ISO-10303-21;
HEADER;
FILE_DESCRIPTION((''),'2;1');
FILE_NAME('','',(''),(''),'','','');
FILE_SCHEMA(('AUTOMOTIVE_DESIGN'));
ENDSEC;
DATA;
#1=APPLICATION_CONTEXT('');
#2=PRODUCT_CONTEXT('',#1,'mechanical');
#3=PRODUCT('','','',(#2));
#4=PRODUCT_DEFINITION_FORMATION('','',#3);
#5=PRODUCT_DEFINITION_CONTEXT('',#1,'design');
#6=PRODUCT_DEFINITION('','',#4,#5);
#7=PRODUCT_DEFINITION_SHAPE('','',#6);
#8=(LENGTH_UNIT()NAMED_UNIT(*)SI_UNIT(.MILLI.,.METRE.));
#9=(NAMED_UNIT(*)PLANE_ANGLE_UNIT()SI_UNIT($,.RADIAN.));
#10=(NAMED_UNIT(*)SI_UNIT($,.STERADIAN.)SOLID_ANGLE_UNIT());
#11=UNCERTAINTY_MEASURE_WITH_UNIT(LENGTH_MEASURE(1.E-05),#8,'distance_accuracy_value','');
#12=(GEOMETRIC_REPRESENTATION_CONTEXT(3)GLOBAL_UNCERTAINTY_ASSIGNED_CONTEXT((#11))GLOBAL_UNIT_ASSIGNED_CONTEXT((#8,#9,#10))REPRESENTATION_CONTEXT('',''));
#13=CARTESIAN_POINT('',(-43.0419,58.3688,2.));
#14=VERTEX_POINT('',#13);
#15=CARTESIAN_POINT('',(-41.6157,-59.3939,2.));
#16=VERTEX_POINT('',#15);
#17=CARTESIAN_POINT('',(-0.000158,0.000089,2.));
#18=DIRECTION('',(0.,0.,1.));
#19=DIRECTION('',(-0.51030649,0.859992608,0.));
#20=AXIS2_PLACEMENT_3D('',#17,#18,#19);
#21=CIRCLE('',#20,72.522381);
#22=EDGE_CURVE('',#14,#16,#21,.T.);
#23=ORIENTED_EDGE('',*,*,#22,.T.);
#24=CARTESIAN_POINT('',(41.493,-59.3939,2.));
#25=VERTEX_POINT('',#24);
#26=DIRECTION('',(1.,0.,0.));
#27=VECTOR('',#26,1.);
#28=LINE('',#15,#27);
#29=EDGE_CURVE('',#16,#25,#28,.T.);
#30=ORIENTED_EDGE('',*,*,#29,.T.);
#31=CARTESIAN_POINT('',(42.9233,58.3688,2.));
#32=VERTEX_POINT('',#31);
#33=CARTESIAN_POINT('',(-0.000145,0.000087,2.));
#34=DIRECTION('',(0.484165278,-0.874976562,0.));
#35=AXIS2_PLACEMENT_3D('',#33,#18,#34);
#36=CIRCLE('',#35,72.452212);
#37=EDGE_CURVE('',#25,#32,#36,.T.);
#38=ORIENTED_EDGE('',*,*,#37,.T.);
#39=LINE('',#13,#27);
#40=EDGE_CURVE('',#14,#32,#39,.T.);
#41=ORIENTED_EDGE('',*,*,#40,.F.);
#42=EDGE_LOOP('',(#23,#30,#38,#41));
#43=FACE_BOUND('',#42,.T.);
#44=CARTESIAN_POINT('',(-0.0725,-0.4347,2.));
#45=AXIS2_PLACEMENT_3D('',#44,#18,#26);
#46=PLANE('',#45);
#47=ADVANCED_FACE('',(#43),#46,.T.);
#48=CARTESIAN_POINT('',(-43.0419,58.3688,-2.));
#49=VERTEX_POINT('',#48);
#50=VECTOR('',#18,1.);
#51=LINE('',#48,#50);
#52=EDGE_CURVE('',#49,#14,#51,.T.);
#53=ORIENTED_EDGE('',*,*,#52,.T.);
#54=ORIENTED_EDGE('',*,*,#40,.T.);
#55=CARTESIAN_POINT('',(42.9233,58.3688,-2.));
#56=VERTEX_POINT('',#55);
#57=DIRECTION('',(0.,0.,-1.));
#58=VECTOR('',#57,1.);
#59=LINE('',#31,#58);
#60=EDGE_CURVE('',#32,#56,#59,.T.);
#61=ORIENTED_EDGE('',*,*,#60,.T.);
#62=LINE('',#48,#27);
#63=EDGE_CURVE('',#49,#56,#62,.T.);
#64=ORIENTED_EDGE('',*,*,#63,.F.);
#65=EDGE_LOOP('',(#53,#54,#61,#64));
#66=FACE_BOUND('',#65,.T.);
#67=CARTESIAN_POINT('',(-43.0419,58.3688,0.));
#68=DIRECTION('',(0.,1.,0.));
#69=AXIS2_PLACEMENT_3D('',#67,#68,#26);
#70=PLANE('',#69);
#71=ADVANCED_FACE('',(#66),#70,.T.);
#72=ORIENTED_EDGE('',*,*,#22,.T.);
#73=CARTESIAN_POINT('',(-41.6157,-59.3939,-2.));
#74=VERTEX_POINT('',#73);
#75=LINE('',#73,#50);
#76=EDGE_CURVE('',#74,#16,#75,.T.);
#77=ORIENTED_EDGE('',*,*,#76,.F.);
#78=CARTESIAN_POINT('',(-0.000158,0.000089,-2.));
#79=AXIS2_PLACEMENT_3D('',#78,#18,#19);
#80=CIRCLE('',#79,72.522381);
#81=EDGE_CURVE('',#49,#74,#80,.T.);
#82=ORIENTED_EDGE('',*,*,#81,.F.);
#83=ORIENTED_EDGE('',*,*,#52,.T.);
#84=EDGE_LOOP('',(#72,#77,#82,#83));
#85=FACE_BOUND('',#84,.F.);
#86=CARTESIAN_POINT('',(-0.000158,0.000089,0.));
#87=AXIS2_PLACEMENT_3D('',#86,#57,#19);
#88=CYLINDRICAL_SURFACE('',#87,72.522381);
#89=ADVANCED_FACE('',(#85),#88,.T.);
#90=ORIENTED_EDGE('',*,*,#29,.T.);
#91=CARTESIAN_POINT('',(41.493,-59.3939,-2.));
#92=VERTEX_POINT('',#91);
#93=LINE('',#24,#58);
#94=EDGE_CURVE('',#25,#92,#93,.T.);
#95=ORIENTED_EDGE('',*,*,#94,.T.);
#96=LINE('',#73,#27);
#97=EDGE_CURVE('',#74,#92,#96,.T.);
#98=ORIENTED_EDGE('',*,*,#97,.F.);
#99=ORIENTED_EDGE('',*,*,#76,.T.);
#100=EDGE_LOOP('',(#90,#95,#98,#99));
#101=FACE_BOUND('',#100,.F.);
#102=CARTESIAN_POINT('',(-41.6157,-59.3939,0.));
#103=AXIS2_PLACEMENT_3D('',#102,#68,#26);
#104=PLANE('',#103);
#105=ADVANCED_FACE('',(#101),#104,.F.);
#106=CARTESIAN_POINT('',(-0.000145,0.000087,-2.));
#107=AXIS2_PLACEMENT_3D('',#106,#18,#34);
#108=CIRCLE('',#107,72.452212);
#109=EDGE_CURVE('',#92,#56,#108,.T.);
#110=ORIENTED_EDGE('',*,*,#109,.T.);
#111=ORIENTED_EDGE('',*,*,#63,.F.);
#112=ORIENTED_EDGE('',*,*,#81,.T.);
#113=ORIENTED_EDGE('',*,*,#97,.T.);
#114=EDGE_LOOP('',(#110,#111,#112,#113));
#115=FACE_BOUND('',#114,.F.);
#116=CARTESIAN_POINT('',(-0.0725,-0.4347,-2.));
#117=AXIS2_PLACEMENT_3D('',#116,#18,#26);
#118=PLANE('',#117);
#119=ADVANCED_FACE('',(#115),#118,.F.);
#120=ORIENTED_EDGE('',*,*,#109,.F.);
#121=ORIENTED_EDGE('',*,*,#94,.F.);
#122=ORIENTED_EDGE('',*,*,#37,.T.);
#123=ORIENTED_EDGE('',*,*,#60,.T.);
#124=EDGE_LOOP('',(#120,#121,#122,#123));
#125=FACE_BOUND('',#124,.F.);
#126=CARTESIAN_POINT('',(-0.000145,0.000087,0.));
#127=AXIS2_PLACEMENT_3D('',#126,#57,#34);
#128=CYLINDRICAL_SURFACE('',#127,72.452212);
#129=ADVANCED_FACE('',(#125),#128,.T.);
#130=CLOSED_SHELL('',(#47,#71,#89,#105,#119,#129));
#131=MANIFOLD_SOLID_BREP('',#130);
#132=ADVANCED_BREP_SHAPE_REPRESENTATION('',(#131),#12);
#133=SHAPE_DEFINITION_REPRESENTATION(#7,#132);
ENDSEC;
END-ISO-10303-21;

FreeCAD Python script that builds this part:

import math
import FreeCAD as App
import Part
import Sketcher
from FreeCAD import Vector
Q = App.Units.Quantity

doc = App.newDocument("Part")
body = doc.addObject("PartDesign::Body", "Body")

# Sketch on XY plane
sketch1 = doc.addObject("Sketcher::SketchObject", "Sketch")
body.addObject(sketch1)
sketch1.AttachmentSupport = (doc.XY_Plane, [""])
sketch1.MapMode = "FlatFace"
sketch1.addGeometry([
    Part.LineSegment(Vector(43, 58, 0), Vector(-43, 58, 0)),
    Part.ArcOfCircle(Part.Circle(Vector(0, 0, 0), Vector(0, 0, 1), 73), math.radians(126), math.radians(235)),
    Part.LineSegment(Vector(-42, -59, 0), Vector(41, -59, 0)),
    Part.ArcOfCircle(Part.Circle(Vector(0, 0, 0), Vector(0, 0, 1), 72), math.radians(-55), math.radians(54)),
], False)
sketch1.addConstraint([
    Sketcher.Constraint("Coincident", 0, 2, 1, 1),
    Sketcher.Constraint("Coincident", 1, 2, 2, 1),
    Sketcher.Constraint("Coincident", 2, 2, 3, 1),
    Sketcher.Constraint("Coincident", 3, 2, 0, 1),
    Sketcher.Constraint("Horizontal", 0),
    Sketcher.Constraint("Horizontal", 2),
    Sketcher.Constraint("Coincident", 1, 3, -1, 1),
    Sketcher.Constraint("Coincident", 3, 3, -1, 1),
    Sketcher.Constraint("Radius", 3, Q("72.452 mm")),
    Sketcher.Constraint("Radius", 1, Q("72.5225 mm")),
    Sketcher.Constraint("DistanceX", 0, 2, 0, 1, Q("85.9652 mm")),
    Sketcher.Constraint("DistanceX", 2, 1, 2, 2, Q("83.1087 mm")),
])
pad1 = doc.addObject("PartDesign::Pad", "Pad")
body.addObject(pad1)
pad1.Profile = sketch1
pad1.Length = 4
pad1.Midplane = True

doc.recompute()
